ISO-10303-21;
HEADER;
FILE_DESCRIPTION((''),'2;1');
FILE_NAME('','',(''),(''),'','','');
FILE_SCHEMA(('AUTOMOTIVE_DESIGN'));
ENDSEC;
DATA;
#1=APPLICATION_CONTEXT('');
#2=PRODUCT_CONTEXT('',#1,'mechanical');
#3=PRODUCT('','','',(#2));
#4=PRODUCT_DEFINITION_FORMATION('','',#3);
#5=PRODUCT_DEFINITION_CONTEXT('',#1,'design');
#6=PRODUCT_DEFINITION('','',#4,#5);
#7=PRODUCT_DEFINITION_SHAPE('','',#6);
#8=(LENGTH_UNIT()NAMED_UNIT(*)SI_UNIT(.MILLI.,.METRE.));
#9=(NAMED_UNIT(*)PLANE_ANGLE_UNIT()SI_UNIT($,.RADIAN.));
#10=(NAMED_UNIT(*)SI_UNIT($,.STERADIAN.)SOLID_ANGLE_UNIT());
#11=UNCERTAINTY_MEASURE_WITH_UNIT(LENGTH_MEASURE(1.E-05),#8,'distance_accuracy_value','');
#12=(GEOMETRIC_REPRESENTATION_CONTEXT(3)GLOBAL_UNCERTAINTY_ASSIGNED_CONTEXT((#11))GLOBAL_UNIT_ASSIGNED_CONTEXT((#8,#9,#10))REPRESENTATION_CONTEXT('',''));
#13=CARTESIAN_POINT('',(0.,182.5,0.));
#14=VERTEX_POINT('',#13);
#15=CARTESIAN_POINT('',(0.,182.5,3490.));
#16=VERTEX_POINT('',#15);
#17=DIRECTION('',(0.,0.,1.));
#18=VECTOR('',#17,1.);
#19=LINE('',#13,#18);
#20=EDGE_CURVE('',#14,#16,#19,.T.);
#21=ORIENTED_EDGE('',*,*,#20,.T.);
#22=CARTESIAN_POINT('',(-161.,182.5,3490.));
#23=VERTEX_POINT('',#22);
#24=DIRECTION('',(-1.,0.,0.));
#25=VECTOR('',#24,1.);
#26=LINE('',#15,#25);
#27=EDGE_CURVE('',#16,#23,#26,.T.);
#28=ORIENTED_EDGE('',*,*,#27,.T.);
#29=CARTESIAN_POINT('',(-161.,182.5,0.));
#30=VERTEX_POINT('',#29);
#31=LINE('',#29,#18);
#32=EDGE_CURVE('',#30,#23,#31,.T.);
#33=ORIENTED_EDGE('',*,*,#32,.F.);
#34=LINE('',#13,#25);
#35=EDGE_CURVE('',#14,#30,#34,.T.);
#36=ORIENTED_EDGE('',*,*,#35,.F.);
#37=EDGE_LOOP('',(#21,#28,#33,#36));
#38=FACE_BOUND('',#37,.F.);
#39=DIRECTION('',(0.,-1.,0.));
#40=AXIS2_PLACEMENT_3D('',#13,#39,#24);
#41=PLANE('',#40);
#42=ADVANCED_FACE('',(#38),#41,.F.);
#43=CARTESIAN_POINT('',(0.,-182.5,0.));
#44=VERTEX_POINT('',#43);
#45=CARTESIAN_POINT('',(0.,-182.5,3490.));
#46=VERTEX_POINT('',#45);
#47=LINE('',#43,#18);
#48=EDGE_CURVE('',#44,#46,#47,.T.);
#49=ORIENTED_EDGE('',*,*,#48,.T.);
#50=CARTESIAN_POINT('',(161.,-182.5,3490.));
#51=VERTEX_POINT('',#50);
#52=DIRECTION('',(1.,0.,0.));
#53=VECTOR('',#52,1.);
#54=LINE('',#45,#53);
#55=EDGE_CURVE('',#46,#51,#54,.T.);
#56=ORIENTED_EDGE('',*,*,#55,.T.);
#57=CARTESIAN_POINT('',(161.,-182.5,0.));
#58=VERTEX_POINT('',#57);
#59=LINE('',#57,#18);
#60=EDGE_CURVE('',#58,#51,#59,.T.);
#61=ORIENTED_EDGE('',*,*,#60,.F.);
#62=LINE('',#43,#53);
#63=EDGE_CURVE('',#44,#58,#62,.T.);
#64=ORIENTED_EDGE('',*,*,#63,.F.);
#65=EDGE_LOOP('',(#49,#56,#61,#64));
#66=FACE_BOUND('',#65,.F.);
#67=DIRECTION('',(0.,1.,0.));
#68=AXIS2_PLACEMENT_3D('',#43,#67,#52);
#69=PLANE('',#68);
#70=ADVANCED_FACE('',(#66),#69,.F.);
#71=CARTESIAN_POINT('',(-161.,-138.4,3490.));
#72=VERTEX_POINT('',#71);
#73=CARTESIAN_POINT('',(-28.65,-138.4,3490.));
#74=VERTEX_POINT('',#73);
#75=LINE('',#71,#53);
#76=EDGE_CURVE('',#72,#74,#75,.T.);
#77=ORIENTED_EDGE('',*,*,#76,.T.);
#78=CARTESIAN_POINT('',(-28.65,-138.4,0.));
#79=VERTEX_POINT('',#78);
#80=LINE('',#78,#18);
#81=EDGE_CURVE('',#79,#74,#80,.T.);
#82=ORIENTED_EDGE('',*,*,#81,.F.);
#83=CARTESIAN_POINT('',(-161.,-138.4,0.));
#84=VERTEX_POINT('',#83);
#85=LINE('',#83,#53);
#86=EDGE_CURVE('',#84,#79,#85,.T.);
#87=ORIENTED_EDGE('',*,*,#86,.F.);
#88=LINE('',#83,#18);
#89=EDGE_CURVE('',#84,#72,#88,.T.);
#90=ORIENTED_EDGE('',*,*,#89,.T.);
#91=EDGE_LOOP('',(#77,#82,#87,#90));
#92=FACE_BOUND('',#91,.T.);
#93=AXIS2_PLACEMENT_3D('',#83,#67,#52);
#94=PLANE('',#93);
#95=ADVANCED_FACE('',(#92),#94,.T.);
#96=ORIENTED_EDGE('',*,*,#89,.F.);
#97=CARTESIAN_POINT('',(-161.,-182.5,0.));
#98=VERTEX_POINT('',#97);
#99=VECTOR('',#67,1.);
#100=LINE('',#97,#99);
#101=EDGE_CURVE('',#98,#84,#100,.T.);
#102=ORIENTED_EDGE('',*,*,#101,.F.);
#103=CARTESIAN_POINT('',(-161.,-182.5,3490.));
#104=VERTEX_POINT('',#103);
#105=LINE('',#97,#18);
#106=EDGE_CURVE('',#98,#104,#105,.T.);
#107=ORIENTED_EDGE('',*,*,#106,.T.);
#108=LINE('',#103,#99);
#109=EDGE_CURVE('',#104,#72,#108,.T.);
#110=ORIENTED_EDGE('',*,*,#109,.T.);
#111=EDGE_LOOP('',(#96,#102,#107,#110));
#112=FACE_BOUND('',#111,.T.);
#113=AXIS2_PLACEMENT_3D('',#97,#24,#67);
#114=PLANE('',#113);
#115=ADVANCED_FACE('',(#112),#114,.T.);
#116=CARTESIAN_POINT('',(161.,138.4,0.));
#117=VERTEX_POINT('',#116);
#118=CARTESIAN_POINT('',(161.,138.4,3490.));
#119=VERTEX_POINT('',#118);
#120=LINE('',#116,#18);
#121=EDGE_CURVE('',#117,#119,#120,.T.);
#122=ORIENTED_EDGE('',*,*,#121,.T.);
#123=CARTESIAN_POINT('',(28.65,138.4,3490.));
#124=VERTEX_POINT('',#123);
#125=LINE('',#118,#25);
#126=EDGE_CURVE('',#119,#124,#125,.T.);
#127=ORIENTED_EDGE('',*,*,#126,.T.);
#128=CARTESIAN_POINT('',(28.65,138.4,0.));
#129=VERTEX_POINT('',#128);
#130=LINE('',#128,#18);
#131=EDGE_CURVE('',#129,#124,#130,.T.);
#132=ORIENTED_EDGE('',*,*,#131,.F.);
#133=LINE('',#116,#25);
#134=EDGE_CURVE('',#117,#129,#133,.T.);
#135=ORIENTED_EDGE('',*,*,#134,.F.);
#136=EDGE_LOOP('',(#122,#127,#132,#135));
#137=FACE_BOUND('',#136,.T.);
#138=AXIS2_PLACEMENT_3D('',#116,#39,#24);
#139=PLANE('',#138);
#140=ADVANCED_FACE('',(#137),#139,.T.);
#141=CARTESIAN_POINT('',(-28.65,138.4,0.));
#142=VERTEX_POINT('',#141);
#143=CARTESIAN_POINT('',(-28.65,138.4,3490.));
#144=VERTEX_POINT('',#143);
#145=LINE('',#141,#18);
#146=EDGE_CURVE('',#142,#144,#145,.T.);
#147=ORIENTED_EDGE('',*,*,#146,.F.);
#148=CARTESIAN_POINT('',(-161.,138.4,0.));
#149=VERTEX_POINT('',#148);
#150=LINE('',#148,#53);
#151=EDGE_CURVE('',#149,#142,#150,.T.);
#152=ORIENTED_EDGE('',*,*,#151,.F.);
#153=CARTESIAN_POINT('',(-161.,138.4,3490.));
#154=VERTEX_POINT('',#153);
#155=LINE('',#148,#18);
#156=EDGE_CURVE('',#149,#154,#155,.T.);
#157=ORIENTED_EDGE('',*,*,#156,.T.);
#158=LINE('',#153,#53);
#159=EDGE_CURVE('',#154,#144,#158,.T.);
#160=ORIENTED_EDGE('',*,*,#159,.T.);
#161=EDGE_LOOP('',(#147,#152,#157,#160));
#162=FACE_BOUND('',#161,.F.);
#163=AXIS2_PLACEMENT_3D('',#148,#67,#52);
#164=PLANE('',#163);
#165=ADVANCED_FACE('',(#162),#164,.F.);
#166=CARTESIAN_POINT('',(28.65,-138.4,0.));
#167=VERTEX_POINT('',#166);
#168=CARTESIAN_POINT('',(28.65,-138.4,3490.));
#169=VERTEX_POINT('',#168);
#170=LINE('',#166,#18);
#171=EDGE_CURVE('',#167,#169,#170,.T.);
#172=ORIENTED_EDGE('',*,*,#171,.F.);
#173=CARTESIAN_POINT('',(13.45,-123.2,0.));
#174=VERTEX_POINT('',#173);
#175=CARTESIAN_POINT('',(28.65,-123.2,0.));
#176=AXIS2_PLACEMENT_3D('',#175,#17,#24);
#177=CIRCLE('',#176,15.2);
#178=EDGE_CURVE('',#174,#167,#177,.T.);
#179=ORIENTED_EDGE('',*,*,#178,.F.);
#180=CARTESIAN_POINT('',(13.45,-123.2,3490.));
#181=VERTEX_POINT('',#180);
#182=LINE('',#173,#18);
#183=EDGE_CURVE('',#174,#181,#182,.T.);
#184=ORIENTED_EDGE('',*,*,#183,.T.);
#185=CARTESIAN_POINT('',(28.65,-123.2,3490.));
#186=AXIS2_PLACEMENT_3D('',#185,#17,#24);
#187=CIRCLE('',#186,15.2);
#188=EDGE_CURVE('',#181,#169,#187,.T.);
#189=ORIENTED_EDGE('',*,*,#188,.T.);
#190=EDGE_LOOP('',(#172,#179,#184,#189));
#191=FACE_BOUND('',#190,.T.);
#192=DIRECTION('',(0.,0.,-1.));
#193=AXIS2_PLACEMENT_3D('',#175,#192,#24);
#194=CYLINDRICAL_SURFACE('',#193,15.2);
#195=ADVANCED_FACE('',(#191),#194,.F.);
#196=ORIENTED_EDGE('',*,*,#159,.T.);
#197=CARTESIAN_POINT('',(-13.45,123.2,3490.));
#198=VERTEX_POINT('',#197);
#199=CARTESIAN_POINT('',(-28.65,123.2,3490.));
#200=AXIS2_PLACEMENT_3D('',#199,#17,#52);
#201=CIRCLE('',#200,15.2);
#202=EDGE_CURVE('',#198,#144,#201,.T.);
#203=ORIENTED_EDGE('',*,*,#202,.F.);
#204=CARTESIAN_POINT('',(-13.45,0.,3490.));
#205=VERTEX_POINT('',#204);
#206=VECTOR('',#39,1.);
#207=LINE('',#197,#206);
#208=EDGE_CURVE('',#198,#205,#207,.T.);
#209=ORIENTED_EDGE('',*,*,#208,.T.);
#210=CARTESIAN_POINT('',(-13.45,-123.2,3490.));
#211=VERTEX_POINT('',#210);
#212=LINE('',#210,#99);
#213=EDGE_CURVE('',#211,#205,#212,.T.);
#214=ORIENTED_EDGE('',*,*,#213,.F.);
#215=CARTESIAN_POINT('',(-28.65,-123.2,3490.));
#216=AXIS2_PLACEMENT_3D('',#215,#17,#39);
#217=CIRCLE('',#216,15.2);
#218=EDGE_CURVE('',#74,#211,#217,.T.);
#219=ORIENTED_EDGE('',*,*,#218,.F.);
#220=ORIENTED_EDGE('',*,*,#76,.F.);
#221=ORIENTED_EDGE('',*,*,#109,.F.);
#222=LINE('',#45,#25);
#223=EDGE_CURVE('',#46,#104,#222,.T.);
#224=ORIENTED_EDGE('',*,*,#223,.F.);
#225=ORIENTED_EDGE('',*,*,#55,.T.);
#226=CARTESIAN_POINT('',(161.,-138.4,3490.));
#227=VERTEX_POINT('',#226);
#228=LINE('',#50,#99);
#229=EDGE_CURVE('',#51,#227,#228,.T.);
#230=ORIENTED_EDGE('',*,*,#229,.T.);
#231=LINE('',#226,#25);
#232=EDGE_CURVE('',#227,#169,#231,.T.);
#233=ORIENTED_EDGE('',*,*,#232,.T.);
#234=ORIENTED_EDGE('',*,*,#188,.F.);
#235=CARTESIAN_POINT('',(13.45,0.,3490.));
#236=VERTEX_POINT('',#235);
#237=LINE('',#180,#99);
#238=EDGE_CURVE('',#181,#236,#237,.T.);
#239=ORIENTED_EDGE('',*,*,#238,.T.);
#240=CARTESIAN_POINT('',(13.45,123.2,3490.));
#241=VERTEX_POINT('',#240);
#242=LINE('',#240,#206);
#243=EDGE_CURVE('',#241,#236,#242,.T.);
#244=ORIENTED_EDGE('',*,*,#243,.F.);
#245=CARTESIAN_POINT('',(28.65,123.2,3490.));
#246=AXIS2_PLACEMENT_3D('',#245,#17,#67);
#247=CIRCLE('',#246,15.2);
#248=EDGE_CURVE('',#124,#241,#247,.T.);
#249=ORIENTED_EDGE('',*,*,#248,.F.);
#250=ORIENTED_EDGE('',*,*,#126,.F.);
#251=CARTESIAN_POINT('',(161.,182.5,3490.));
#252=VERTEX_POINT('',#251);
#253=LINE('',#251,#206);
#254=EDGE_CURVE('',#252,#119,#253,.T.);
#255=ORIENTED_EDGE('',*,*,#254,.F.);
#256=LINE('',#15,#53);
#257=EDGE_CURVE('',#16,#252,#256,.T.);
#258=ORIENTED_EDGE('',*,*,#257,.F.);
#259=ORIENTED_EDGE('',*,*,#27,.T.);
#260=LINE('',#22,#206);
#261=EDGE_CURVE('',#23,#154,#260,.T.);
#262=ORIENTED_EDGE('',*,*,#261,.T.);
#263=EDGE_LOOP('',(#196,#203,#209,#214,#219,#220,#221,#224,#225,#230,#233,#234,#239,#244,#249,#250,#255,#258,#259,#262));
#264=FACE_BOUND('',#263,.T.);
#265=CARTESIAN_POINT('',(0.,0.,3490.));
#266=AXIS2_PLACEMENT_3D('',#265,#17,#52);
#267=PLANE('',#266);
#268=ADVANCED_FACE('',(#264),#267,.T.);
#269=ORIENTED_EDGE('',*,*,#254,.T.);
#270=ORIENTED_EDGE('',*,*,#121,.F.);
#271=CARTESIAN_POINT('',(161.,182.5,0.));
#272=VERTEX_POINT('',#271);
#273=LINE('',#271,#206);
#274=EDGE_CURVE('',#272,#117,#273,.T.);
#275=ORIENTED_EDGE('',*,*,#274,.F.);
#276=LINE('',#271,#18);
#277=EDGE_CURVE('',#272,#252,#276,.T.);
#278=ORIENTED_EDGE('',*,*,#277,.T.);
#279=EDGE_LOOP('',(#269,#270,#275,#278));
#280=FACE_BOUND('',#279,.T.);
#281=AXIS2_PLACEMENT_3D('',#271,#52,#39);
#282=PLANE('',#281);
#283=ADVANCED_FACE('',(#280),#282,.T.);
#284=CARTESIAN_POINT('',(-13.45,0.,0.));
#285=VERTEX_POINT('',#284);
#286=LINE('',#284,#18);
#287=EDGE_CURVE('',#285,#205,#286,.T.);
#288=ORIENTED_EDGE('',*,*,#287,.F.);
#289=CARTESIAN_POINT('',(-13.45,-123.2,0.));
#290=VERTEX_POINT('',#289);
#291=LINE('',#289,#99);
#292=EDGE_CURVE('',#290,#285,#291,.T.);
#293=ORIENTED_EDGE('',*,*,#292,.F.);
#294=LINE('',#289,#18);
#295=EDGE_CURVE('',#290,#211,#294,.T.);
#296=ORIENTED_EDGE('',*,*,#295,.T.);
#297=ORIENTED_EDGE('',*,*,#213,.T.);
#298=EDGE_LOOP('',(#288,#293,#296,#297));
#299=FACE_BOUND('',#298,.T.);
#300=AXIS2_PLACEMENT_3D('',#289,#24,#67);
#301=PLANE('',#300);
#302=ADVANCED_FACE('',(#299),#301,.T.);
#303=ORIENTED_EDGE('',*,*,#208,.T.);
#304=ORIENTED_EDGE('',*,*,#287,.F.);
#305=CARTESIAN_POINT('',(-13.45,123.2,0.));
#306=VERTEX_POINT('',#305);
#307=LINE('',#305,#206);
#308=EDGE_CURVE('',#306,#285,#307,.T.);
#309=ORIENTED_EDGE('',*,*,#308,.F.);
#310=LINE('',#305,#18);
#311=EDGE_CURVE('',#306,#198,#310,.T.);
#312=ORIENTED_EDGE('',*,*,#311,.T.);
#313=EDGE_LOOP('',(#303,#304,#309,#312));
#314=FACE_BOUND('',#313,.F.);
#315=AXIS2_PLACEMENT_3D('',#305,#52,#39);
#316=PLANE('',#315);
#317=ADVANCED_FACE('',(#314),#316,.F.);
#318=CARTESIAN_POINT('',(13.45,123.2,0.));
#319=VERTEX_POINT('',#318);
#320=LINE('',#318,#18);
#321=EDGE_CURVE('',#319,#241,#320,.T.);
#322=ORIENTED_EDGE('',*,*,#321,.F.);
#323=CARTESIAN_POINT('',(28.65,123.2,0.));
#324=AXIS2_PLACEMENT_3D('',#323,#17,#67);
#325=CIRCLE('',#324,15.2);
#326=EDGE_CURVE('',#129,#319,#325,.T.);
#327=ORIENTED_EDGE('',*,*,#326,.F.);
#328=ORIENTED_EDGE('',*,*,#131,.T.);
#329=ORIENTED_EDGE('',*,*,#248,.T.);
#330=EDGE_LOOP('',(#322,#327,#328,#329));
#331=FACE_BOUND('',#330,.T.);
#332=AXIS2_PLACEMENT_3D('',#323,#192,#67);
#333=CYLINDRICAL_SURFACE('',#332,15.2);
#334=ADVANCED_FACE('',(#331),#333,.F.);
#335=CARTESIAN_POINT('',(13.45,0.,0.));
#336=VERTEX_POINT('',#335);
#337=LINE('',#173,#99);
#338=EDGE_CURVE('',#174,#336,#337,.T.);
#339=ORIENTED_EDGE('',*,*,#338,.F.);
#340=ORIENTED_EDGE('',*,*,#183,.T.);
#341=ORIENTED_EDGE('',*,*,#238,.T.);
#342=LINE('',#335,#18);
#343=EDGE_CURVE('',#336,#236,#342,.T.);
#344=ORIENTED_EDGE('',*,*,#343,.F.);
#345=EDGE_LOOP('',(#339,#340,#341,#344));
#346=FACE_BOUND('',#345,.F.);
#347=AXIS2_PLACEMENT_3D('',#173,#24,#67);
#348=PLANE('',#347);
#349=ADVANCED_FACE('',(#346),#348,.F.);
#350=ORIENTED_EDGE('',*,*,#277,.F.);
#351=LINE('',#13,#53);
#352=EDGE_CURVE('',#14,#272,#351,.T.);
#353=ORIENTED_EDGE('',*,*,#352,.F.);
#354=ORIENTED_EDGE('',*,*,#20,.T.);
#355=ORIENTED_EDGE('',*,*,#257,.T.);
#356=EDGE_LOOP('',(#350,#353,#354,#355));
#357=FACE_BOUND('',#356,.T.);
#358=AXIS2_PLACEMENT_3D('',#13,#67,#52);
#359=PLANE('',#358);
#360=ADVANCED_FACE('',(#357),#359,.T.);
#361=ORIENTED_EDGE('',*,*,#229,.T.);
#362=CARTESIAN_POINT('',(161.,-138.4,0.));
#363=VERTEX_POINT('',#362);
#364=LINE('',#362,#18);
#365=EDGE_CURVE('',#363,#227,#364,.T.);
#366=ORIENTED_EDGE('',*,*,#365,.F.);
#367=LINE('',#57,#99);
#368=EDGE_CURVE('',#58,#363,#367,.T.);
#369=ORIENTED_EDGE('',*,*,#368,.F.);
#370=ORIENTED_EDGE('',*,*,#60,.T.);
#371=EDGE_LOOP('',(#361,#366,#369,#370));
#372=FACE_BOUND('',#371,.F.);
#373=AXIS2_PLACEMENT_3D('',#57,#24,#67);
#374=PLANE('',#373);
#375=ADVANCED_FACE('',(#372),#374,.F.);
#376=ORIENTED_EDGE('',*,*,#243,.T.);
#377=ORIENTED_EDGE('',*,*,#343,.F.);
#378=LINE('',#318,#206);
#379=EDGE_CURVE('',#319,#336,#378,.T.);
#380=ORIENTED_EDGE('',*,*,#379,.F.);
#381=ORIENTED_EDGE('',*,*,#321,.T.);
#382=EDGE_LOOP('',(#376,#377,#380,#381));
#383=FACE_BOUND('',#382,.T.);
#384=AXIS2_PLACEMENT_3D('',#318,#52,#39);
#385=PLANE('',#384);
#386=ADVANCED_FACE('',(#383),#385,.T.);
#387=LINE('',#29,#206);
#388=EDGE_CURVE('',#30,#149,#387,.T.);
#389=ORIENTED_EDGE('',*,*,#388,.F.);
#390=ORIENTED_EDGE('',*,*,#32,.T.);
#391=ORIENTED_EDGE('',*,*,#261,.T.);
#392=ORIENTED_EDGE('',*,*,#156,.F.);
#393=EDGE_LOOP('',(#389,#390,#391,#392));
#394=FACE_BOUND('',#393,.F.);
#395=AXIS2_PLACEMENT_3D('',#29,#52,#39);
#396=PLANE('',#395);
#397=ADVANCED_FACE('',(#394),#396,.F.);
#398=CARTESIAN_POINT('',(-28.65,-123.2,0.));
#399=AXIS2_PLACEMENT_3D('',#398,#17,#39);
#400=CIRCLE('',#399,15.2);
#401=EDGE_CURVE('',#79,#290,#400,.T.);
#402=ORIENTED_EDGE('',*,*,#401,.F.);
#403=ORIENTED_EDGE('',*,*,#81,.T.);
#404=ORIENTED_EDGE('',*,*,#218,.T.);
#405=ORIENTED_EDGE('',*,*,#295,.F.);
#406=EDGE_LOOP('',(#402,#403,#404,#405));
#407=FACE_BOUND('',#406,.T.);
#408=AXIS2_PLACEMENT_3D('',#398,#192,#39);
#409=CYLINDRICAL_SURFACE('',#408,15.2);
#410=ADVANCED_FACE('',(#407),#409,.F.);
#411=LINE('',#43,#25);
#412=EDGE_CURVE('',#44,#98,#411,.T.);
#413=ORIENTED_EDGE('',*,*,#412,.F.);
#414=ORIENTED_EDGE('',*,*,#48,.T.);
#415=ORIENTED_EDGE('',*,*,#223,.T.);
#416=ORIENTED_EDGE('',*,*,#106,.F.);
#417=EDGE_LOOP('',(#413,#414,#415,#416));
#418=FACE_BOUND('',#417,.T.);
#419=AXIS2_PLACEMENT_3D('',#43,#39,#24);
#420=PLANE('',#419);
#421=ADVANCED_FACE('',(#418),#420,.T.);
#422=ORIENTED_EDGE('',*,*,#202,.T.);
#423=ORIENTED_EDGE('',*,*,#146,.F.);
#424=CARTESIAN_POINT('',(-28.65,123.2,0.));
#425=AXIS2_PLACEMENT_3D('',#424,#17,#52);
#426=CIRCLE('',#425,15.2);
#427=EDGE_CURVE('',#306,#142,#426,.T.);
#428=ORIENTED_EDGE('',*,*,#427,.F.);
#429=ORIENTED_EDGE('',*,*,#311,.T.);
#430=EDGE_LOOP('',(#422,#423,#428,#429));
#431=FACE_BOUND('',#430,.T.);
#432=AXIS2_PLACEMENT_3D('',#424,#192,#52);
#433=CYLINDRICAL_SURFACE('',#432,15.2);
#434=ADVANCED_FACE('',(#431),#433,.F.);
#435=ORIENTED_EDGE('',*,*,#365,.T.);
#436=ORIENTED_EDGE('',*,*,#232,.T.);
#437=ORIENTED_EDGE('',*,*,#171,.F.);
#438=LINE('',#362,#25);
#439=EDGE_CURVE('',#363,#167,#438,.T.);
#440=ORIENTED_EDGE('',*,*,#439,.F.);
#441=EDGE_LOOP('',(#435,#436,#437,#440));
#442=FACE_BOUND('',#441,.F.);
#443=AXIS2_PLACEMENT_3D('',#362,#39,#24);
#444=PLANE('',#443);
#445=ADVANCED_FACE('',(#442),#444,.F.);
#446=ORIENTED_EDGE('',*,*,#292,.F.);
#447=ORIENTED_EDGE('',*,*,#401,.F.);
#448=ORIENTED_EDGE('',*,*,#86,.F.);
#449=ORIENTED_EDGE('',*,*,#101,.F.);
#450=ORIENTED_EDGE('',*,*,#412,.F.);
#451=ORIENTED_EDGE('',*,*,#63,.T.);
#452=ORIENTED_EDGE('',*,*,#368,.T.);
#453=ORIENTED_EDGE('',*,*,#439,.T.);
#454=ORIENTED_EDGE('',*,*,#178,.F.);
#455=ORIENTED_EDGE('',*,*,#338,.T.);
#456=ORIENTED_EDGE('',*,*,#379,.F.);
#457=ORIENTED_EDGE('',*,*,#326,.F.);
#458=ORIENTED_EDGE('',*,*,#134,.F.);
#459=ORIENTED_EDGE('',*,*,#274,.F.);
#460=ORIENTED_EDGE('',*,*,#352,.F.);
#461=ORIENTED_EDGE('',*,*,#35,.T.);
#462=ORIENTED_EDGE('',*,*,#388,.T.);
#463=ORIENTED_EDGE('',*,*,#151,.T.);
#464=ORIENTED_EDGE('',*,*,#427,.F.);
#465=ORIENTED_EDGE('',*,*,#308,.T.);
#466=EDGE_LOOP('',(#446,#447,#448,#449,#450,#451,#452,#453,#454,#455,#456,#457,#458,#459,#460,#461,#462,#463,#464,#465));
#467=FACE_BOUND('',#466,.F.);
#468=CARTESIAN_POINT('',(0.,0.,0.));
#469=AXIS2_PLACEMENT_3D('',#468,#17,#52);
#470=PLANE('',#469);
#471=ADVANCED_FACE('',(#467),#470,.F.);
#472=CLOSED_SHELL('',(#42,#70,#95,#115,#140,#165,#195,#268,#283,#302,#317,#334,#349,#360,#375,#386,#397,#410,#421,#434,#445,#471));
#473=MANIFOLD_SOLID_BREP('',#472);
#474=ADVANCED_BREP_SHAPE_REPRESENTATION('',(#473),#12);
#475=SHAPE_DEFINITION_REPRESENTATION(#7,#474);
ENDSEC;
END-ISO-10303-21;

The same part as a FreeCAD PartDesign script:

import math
import FreeCAD as App
import Part
import Sketcher
from FreeCAD import Vector

doc = App.newDocument("Part")
params = doc.addObject("Spreadsheet::Sheet", "Params")
for row, (alias, value) in enumerate([
    ("sketch1_radius", "15.2 mm"),
    ("sketch1_height", "44.1 mm"),
    ("pad1_length", "3490 mm"),
], start=1):
    params.set(f"A{row}", alias)
    params.set(f"B{row}", "=" + value)
    params.setAlias(f"B{row}", alias)

body = doc.addObject("PartDesign::Body", "Body")

sketch1 = body.newObject("Sketcher::SketchObject", "Sketch")
sketch1.AttachmentSupport = (doc.getObject("XY_Plane"), [""])
sketch1.MapMode = "FlatFace"
sketch1.addGeometry(Part.LineSegment(Vector(-161, -138, 0), Vector(-161, -182, 0)), False)
sketch1.addGeometry(Part.LineSegment(Vector(-161, -182, 0), Vector(161, -182, 0)), False)
sketch1.addGeometry(Part.LineSegment(Vector(161, -182, 0), Vector(161, -138, 0)), False)
sketch1.addGeometry(Part.LineSegment(Vector(161, -138, 0), Vector(29, -138, 0)), False)
sketch1.addGeometry(Part.ArcOfCircle(Part.Circle(Vector(29, -123, 0), Vector(0, 0, 1), 15), math.radians(180), math.radians(270)), False)
sketch1.addGeometry(Part.LineSegment(Vector(13, -123, 0), Vector(13, 123, 0)), False)
sketch1.addGeometry(Part.ArcOfCircle(Part.Circle(Vector(29, 123, 0), Vector(0, 0, 1), 15), math.radians(90), math.radians(180)), False)
sketch1.addGeometry(Part.LineSegment(Vector(29, 138, 0), Vector(161, 138, 0)), False)
sketch1.addGeometry(Part.LineSegment(Vector(161, 138, 0), Vector(161, 182, 0)), False)
sketch1.addGeometry(Part.LineSegment(Vector(161, 182, 0), Vector(-161, 182, 0)), False)
sketch1.addGeometry(Part.LineSegment(Vector(-161, 182, 0), Vector(-161, 138, 0)), False)
sketch1.addGeometry(Part.LineSegment(Vector(-161, 138, 0), Vector(-29, 138, 0)), False)
sketch1.addGeometry(Part.ArcOfCircle(Part.Circle(Vector(-29, 123, 0), Vector(0, 0, 1), 15), math.radians(0), math.radians(90)), False)
sketch1.addGeometry(Part.LineSegment(Vector(-13, 123, 0), Vector(-13, -123, 0)), False)
sketch1.addGeometry(Part.ArcOfCircle(Part.Circle(Vector(-29, -123, 0), Vector(0, 0, 1), 15), math.radians(-90), math.radians(0)), False)
sketch1.addGeometry(Part.LineSegment(Vector(-29, -138, 0), Vector(-161, -138, 0)), False)
sketch1.addConstraint(Sketcher.Constraint("Coincident", 0, 2, 1, 1))
sketch1.addConstraint(Sketcher.Constraint("Coincident", 1, 2, 2, 1))
sketch1.addConstraint(Sketcher.Constraint("Coincident", 2, 2, 3, 1))
sketch1.addConstraint(Sketcher.Constraint("Tangent", 3, 2, 4, 2))
sketch1.addConstraint(Sketcher.Constraint("Tangent", 4, 1, 5, 1))
sketch1.addConstraint(Sketcher.Constraint("Tangent", 5, 2, 6, 2))
sketch1.addConstraint(Sketcher.Constraint("Tangent", 6, 1, 7, 1))
sketch1.addConstraint(Sketcher.Constraint("Coincident", 7, 2, 8, 1))
sketch1.addConstraint(Sketcher.Constraint("Coincident", 8, 2, 9, 1))
sketch1.addConstraint(Sketcher.Constraint("Coincident", 9, 2, 10, 1))
sketch1.addConstraint(Sketcher.Constraint("Coincident", 10, 2, 11, 1))
sketch1.addConstraint(Sketcher.Constraint("Tangent", 11, 2, 12, 2))
sketch1.addConstraint(Sketcher.Constraint("Tangent", 12, 1, 13, 1))
sketch1.addConstraint(Sketcher.Constraint("Tangent", 13, 2, 14, 2))
sketch1.addConstraint(Sketcher.Constraint("Tangent", 14, 1, 15, 1))
sketch1.addConstraint(Sketcher.Constraint("Coincident", 15, 2, 0, 1))
sketch1.addConstraint(Sketcher.Constraint("Vertical", 0))
sketch1.addConstraint(Sketcher.Constraint("Horizontal", 1))
sketch1.addConstraint(Sketcher.Constraint("Vertical", 2))
sketch1.addConstraint(Sketcher.Constraint("Horizontal", 3))
sketch1.addConstraint(Sketcher.Constraint("Vertical", 5))
sketch1.addConstraint(Sketcher.Constraint("Horizontal", 7))
sketch1.addConstraint(Sketcher.Constraint("Vertical", 8))
sketch1.addConstraint(Sketcher.Constraint("Horizontal", 9))
sketch1.addConstraint(Sketcher.Constraint("Vertical", 10))
sketch1.addConstraint(Sketcher.Constraint("Horizontal", 11))
sketch1.addConstraint(Sketcher.Constraint("Vertical", 13))
sketch1.addConstraint(Sketcher.Constraint("Horizontal", 15))
sketch1.addConstraint(Sketcher.Constraint("Equal", 4, 6))
sketch1.addConstraint(Sketcher.Constraint("Equal", 6, 12))
sketch1.addConstraint(Sketcher.Constraint("Equal", 12, 14))
sketch1.addConstraint(Sketcher.Constraint("Symmetric", 4, 3, 12, 3, -1, 1))
sketch1.addConstraint(Sketcher.Constraint("Symmetric", 0, 2, 8, 2, -1, 1))
sketch1.addConstraint(Sketcher.Constraint("Symmetric", 7, 2, 10, 2, -2))
sketch1.addConstraint(Sketcher.Constraint("Symmetric", 2, 2, 15, 2, -2))
sketch1.addConstraint(Sketcher.Constraint("Radius", 4, 15.2))
sketch1.addConstraint(Sketcher.Constraint("DistanceY", 0, 2, 0, 1, 44.1))
sketch1.addConstraint(Sketcher.Constraint("DistanceX", 0, 2, -1, 1, 161.0))
sketch1.addConstraint(Sketcher.Constraint("DistanceY", 0, 2, -1, 1, 182.5))
sketch1.addConstraint(Sketcher.Constraint("DistanceX", -1, 1, 4, 1, 13.45))
sketch1.setExpression("Constraints[35]", "Params.sketch1_radius")
sketch1.setExpression("Constraints[36]", "Params.sketch1_height")
pad1 = body.newObject("PartDesign::Pad", "Pad")
pad1.Profile = sketch1
pad1.setExpression("Length", "Params.pad1_length")

doc.recompute()
